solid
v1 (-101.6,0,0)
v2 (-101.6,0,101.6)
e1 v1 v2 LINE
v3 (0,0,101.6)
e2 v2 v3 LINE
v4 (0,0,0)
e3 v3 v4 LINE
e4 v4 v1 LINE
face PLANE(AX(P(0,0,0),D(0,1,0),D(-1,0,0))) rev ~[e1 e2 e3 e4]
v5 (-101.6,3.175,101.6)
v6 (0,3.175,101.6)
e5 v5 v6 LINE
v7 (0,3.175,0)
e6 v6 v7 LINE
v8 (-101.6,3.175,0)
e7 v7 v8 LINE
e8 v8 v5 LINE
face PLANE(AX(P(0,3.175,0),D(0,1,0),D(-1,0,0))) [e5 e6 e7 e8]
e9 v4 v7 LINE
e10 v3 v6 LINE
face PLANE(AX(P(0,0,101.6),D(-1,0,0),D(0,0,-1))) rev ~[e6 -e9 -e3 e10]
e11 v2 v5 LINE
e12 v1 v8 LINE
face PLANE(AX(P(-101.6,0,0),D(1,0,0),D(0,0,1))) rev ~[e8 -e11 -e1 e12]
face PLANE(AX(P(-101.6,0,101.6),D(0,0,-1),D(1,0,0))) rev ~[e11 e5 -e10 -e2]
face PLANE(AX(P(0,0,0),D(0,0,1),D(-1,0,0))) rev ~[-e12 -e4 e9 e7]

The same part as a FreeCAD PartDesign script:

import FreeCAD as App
import Part
import Sketcher
from FreeCAD import Vector
Q = App.Units.Quantity


def add_polygon(sketch, points):
    """Adds a closed chain of lines whose ends are joined by coincident constraints."""
    first, n = sketch.GeometryCount, len(points)
    for a, b in zip(points, points[1:] + points[:1]):
        sketch.addGeometry(Part.LineSegment(App.Vector(*a, 0), App.Vector(*b, 0)), False)
    for i in range(n):
        sketch.addConstraint(Sketcher.Constraint("Coincident", first + i, 2, first + (i + 1) % n, 1))

doc = App.newDocument("Part")
params = doc.addObject("Spreadsheet::Sheet", "Params")
for row, (alias, value) in enumerate([
    ("sketch1_width", "4 in"),
    ("pad1_length", "0.125 in"),
], start=1):
    params.set(f"A{row}", alias)
    params.set(f"B{row}", "=" + value)
    params.setAlias(f"B{row}", alias)

body = doc.addObject("PartDesign::Body", "Body")

# Sketch on XZ plane
sketch1 = body.newObject("Sketcher::SketchObject", "Sketch")
sketch1.AttachmentSupport = (doc.getObject("XZ_Plane"), [""])
sketch1.MapMode = "FlatFace"
add_polygon(sketch1, [(0, 101.6), (0, 0), (-101.6, 0), (-101.6, 101.6)])  # lines 0-3
sketch1.addConstraint([
    Sketcher.Constraint("Vertical", 0),
    Sketcher.Constraint("Horizontal", 1),
    Sketcher.Constraint("Vertical", 2),
    Sketcher.Constraint("Horizontal", 3),
    Sketcher.Constraint("Coincident", 0, 2, -1, 1),
    Sketcher.Constraint("Equal", 3, 0),
    Sketcher.Constraint("DistanceX", 1, 2, 1, 1, Q("4 in")),
])
sketch1.setExpression("Constraints[10]", "Params.sketch1_width")
pad1 = body.newObject("PartDesign::Pad", "Pad")
pad1.Profile = sketch1
pad1.setExpression("Length", "Params.pad1_length")
pad1.Reversed = True

doc.recompute()
